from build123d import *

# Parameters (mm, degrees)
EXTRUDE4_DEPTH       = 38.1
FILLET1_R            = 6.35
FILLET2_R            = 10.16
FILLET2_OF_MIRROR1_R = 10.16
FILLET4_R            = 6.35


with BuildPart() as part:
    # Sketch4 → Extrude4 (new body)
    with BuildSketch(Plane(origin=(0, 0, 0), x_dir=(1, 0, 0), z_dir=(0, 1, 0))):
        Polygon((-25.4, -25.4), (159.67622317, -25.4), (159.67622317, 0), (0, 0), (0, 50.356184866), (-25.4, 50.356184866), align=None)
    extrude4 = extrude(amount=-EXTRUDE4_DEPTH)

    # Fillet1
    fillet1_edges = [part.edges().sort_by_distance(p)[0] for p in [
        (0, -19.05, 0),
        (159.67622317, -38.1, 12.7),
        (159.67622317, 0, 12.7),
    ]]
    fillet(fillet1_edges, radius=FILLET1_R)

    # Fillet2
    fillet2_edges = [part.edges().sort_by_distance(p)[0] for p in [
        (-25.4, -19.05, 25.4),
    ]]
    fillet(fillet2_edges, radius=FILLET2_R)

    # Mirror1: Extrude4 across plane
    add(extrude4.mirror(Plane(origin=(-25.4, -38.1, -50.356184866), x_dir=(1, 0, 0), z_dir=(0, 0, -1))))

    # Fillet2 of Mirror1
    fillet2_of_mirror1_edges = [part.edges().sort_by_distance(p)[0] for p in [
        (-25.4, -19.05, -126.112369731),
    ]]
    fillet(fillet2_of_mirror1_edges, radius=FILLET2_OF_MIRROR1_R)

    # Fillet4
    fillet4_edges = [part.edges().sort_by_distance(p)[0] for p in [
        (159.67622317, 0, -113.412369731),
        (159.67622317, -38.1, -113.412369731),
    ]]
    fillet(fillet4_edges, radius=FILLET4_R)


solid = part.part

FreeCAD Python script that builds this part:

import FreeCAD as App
import Part
import Sketcher
Q = App.Units.Quantity


def edges_at(feature, points):
    """Names of the edges that pass closest to the given points."""
    edges = feature.Shape.Edges
    near = lambda p: min(range(len(edges)), key=lambda i: edges[i].distToShape(Part.Vertex(*p))[0])
    return sorted({f"Edge{near(p) + 1}" for p in points})


def add_polygon(sketch, points):
    """Adds a closed chain of lines whose ends are joined by coincident constraints."""
    first, n = sketch.GeometryCount, len(points)
    for a, b in zip(points, points[1:] + points[:1]):
        sketch.addGeometry(Part.LineSegment(App.Vector(*a, 0), App.Vector(*b, 0)), False)
    for i in range(n):
        sketch.addConstraint(Sketcher.Constraint("Coincident", first + i, 2, first + (i + 1) % n, 1))

doc = App.newDocument("Part")
body = doc.addObject("PartDesign::Body", "Body")

sketch1 = doc.addObject("Sketcher::SketchObject", "Sketch")
body.addObject(sketch1)
sketch1.AttachmentSupport = (doc.XZ_Plane, [""])
sketch1.MapMode = "FlatFace"
add_polygon(sketch1, [(-25, 25), (160, 25), (160, 0), (0, 0), (0, -50), (-25, -50)])
sketch1.addConstraint([
    Sketcher.Constraint("Horizontal", 0),
    Sketcher.Constraint("Vertical", 1),
    Sketcher.Constraint("Horizontal", 2),
    Sketcher.Constraint("Vertical", 3),
    Sketcher.Constraint("Horizontal", 4),
    Sketcher.Constraint("Vertical", 5),
    Sketcher.Constraint("Coincident", 2, 2, -1, 1),
    Sketcher.Constraint("Equal", 4, 1),
    Sketcher.Constraint("DistanceX", 4, 2, 4, 1, Q("1 in")),
    Sketcher.Constraint("DistanceX", 0, 1, 0, 2, Q("185.076223 mm")),
    Sketcher.Constraint("DistanceY", 3, 2, 3, 1, Q("50.356185 mm")),
])
pad1 = doc.addObject("PartDesign::Pad", "Pad")
body.addObject(pad1)
pad1.Profile = sketch1
pad1.Length = Q("1.5 in")
doc.recompute()

fillet = doc.addObject("PartDesign::Fillet", "Fillet")
body.addObject(fillet)
fillet.Base = (pad1, edges_at(pad1, [(0, -19.05, 0), (159.676, -38.1, 12.7), (159.676, 0, 12.7)]))
fillet.Radius = Q("0.25 in")
doc.recompute()

fillet2 = doc.addObject("PartDesign::Fillet", "Fillet001")
body.addObject(fillet2)
fillet2.Base = (fillet, edges_at(fillet, [(-25.4, -19.05, 25.4)]))
fillet2.Radius = Q("0.4 in")
doc.recompute()

datumplane = doc.addObject("PartDesign::Plane", "DatumPlane")
body.addObject(datumplane)
datumplane.AttachmentSupport = (doc.XY_Plane, [""])
datumplane.MapMode = "FlatFace"
datumplane.AttachmentOffset = App.Placement(App.Vector(0, 0, -50.356185), App.Rotation())
mirrored = doc.addObject("PartDesign::Mirrored", "Mirrored")
body.addObject(mirrored)
mirrored.Originals = [pad1]
mirrored.MirrorPlane = (datumplane, [""])
body.Tip = mirrored
doc.recompute()

fillet3 = doc.addObject("PartDesign::Fillet", "Fillet002")
body.addObject(fillet3)
fillet3.Base = (mirrored, edges_at(mirrored, [(-25.4, -19.05, -126.112)]))
fillet3.Radius = Q("0.4 in")
doc.recompute()

fillet4 = doc.addObject("PartDesign::Fillet", "Fillet003")
body.addObject(fillet4)
fillet4.Base = (fillet3, edges_at(fillet3, [(159.676, 0, -113.412), (159.676, -38.1, -113.412)]))
fillet4.Radius = Q("0.25 in")

doc.recompute()
